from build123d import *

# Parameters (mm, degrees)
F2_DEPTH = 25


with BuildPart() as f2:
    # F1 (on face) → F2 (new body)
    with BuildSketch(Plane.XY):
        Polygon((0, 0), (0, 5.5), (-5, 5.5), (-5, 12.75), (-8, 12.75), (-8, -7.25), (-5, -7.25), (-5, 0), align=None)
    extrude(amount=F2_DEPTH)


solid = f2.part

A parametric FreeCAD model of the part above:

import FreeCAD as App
import Part
import Sketcher
from FreeCAD import Vector


def add_polygon(sketch, points):
    """Adds a closed chain of lines whose ends are joined by coincident constraints."""
    first, n = sketch.GeometryCount, len(points)
    for a, b in zip(points, points[1:] + points[:1]):
        sketch.addGeometry(Part.LineSegment(App.Vector(*a, 0), App.Vector(*b, 0)), False)
    for i in range(n):
        sketch.addConstraint(Sketcher.Constraint("Coincident", first + i, 2, first + (i + 1) % n, 1))

doc = App.newDocument("Part")
body = doc.addObject("PartDesign::Body", "Body")

# Sketch on XY plane
sketch1 = body.newObject("Sketcher::SketchObject", "Sketch")
sketch1.AttachmentSupport = (doc.getObject("XY_Plane"), [""])
sketch1.MapMode = "FlatFace"
add_polygon(sketch1, [(0, 0), (0, 5.5), (-5, 5.5), (-5, 12.8), (-8, 12.8), (-8, -7.2), (-5, -7.2), (-5, 0)])  # lines 0-7
sketch1.addConstraint([
    Sketcher.Constraint("Vertical", 0),
    Sketcher.Constraint("Horizontal", 1),
    Sketcher.Constraint("Vertical", 2),
    Sketcher.Constraint("Horizontal", 3),
    Sketcher.Constraint("Vertical", 4),
    Sketcher.Constraint("Horizontal", 5),
    Sketcher.Constraint("Vertical", 6),
    Sketcher.Constraint("Horizontal", 7),
    Sketcher.Constraint("Coincident", 7, 2, -1, 1),
    Sketcher.Constraint("Vertical", 2, 2, 5, 2),
    Sketcher.Constraint("Equal", 2, 6),
    Sketcher.Constraint("DistanceX", 1, 2, 1, 1, 5.0),
    Sketcher.Constraint("DistanceX", 3, 2, 3, 1, 3.0),
    Sketcher.Constraint("DistanceY", 4, 2, 4, 1, 20.0),
    Sketcher.Constraint("DistanceY", 0, 1, 0, 2, 5.5),
])
pad1 = body.newObject("PartDesign::Pad", "Pad")
pad1.Profile = sketch1
pad1.Length = 25

doc.recompute()
